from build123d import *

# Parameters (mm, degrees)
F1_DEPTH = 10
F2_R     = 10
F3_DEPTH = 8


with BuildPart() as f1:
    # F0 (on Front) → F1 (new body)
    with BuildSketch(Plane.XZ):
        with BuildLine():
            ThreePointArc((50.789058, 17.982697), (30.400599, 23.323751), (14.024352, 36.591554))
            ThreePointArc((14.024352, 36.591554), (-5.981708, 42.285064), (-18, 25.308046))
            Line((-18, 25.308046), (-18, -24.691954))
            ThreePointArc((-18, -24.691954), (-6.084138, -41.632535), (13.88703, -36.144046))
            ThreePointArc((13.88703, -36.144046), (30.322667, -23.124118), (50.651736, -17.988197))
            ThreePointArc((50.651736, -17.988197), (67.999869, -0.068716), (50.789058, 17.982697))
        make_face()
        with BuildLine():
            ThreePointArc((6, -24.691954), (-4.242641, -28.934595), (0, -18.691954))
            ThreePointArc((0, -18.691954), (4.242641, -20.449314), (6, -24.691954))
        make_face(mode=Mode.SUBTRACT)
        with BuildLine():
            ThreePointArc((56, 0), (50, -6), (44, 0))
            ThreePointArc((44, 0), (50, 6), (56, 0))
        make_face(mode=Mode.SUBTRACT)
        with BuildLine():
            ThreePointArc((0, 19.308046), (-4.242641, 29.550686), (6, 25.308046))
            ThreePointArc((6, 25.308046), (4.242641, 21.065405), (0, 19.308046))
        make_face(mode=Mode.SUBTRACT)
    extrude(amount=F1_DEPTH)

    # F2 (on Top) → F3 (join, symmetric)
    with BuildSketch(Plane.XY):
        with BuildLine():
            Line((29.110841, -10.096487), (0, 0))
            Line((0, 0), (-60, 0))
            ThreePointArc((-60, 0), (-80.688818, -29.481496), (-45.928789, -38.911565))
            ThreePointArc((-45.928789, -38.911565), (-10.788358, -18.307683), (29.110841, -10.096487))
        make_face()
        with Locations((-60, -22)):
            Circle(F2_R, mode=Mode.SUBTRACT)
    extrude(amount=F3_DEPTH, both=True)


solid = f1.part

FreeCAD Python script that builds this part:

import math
import FreeCAD as App
import Part
import Sketcher

V = App.Vector
Q = App.Units.Quantity

doc = App.newDocument("Part")
params = doc.addObject("Spreadsheet::Sheet", "Params")
for row, (alias, value) in enumerate([
    ("sketch1_diameter", "12 mm"),
    ("sketch1_radius", "18 mm"),
    ("sketch1_height", "50 mm"),
    ("pad1_length", "10 mm"),
    ("sketch2_diameter", "20 mm"),
    ("sketch2_radius", "22 mm"),
    ("sketch2_width", "60 mm"),
    ("pad2_length", "16 mm"),
], start=1):
    params.set(f"A{row}", alias)
    params.set(f"B{row}", "=" + value)
    params.setAlias(f"B{row}", alias)

body = doc.addObject("PartDesign::Body", "Body")

# Sketch on XZ plane
sketch1 = body.newObject("Sketcher::SketchObject", "Sketch")
sketch1.AttachmentSupport = (doc.getObject("XZ_Plane"), [""])
sketch1.MapMode = "FlatFace"
sketch1.addGeometry([
    Part.ArcOfCircle(Part.Circle(V(53, 68, 0), V(0, 0, 1), 50), math.radians(-141), math.radians(-93)),  # 0
    Part.ArcOfCircle(Part.Circle(V(0, 25, 0), V(0, 0, 1), 18), math.radians(39), math.radians(180)),  # 1
    Part.LineSegment(V(-18, 25, 0), V(-18, -25, 0)),  # 2
    Part.ArcOfCircle(Part.Circle(V(0, -25, 0), V(0, 0, 1), 18), math.radians(180), math.radians(320)),  # 3
    Part.ArcOfCircle(Part.Circle(V(52, -68, 0), V(0, 0, 1), 50), math.radians(92), math.radians(140)),  # 4
    Part.ArcOfCircle(Part.Circle(V(50, 0, 0), V(0, 0, 1), 18), math.radians(-88), math.radians(87)),  # 5
    Part.ArcOfCircle(Part.Circle(V(0, -25, 0), V(0, 0, 1), 6), math.radians(0), math.radians(90)),  # 6
    Part.ArcOfCircle(Part.Circle(V(0, -25, 0), V(0, 0, 1), 6), math.radians(90), math.radians(360)),  # 7
    Part.Circle(V(50, 0, 0), V(0, 0, 1), 6),  # 8
    Part.ArcOfCircle(Part.Circle(V(0, 25, 0), V(0, 0, 1), 6), math.radians(-90), math.radians(0)),  # 9
    Part.ArcOfCircle(Part.Circle(V(0, 25, 0), V(0, 0, 1), 6), math.radians(0), math.radians(270)),  # 10
], False)
sketch1.addConstraint([
    Sketcher.Constraint("Tangent", 0, 1, 1, 1),
    Sketcher.Constraint("Tangent", 1, 2, 2, 1),
    Sketcher.Constraint("Tangent", 2, 2, 3, 1),
    Sketcher.Constraint("Tangent", 3, 2, 4, 2),
    Sketcher.Constraint("Tangent", 4, 1, 5, 1),
    Sketcher.Constraint("Tangent", 5, 2, 0, 2),
    Sketcher.Constraint("Tangent", 6, 1, 7, 2),
    Sketcher.Constraint("Coincident", 7, 1, 6, 2),
    Sketcher.Constraint("Tangent", 9, 1, 10, 2),
    Sketcher.Constraint("Coincident", 10, 1, 9, 2),
    Sketcher.Constraint("Vertical", 2),
    Sketcher.Constraint("Coincident", 6, 3, 3, 3),
    Sketcher.Constraint("Coincident", 8, 3, 5, 3),
    Sketcher.Constraint("Coincident", 9, 3, 1, 3),
    Sketcher.Constraint("Equal", 1, 3),
    Sketcher.Constraint("Equal", 3, 5),
    Sketcher.Constraint("Equal", 7, 8),
    Sketcher.Constraint("Equal", 8, 9),
    Sketcher.Constraint("PointOnObject", 1, 3, -2),
    Sketcher.Constraint("PointOnObject", 5, 3, -1),
    Sketcher.Constraint("PointOnObject", 7, 1, -2),
    Sketcher.Constraint("PointOnObject", 9, 1, -2),
    Sketcher.Constraint("Horizontal", 2, 2, 6, 1),
    Sketcher.Constraint("Horizontal", 1, 2, 10, 1),
    Sketcher.Constraint("Diameter", 8, Q("12 mm")),
    Sketcher.Constraint("Radius", 1, Q("18 mm")),
    Sketcher.Constraint("DistanceY", 2, 2, 2, 1, Q("50 mm")),
    Sketcher.Constraint("DistanceX", -1, 1, 5, 3, Q("50 mm")),
    Sketcher.Constraint("Radius", 0, Q("49.999993 mm")),
    Sketcher.Constraint("Radius", 4, Q("50.000005 mm")),
    Sketcher.Constraint("DistanceX", -1, 1, 0, 3, Q("52.980881 mm")),
])
sketch1.setExpression("Constraints[24]", "Params.sketch1_diameter")
sketch1.setExpression("Constraints[25]", "Params.sketch1_radius")
sketch1.setExpression("Constraints[26]", "Params.sketch1_height")
pad1 = body.newObject("PartDesign::Pad", "Pad")
pad1.Profile = sketch1
pad1.setExpression("Length", "Params.pad1_length")

# Sketch on XY plane
sketch2 = body.newObject("Sketcher::SketchObject", "Sketch001")
sketch2.AttachmentSupport = (doc.getObject("XY_Plane"), [""])
sketch2.MapMode = "FlatFace"
sketch2.addGeometry([
    Part.LineSegment(V(29, -10, 0), V(0, 0, 0)),  # 0
    Part.LineSegment(V(0, 0, 0), V(-60, 0, 0)),  # 1
    Part.ArcOfCircle(Part.Circle(V(-60, -22, 0), V(0, 0, 1), 22), math.radians(90), math.radians(310)),  # 2
    Part.ArcOfCircle(Part.Circle(V(34, -135, 0), V(0, 0, 1), 125), math.radians(92), math.radians(130)),  # 3
    Part.Circle(V(-60, -22, 0), V(0, 0, 1), 10),  # 4
], False)
sketch2.addConstraint([
    Sketcher.Constraint("Coincident", 0, 2, 1, 1),
    Sketcher.Constraint("Tangent", 1, 2, 2, 1),
    Sketcher.Constraint("Tangent", 2, 2, 3, 2),
    Sketcher.Constraint("Coincident", 3, 1, 0, 1),
    Sketcher.Constraint("Horizontal", 1),
    Sketcher.Constraint("Coincident", 0, 2, -1, 1),
    Sketcher.Constraint("Coincident", 4, 3, 2, 3),
    Sketcher.Constraint("Diameter", 4, Q("20 mm")),
    Sketcher.Constraint("Radius", 2, Q("22 mm")),
    Sketcher.Constraint("DistanceX", 1, 2, 1, 1, Q("60 mm")),
    Sketcher.Constraint("Radius", 3, Q("124.999996 mm")),
    Sketcher.Constraint("DistanceX", 2, 2, -1, 1, Q("45.928789 mm")),
    Sketcher.Constraint("DistanceX", -1, 1, 3, 1, Q("29.110841 mm")),
])
sketch2.setExpression("Constraints[7]", "Params.sketch2_diameter")
sketch2.setExpression("Constraints[8]", "Params.sketch2_radius")
sketch2.setExpression("Constraints[9]", "Params.sketch2_width")
pad2 = body.newObject("PartDesign::Pad", "Pad001")
pad2.Profile = sketch2
pad2.setExpression("Length", "Params.pad2_length")
pad2.Midplane = True

doc.recompute()
